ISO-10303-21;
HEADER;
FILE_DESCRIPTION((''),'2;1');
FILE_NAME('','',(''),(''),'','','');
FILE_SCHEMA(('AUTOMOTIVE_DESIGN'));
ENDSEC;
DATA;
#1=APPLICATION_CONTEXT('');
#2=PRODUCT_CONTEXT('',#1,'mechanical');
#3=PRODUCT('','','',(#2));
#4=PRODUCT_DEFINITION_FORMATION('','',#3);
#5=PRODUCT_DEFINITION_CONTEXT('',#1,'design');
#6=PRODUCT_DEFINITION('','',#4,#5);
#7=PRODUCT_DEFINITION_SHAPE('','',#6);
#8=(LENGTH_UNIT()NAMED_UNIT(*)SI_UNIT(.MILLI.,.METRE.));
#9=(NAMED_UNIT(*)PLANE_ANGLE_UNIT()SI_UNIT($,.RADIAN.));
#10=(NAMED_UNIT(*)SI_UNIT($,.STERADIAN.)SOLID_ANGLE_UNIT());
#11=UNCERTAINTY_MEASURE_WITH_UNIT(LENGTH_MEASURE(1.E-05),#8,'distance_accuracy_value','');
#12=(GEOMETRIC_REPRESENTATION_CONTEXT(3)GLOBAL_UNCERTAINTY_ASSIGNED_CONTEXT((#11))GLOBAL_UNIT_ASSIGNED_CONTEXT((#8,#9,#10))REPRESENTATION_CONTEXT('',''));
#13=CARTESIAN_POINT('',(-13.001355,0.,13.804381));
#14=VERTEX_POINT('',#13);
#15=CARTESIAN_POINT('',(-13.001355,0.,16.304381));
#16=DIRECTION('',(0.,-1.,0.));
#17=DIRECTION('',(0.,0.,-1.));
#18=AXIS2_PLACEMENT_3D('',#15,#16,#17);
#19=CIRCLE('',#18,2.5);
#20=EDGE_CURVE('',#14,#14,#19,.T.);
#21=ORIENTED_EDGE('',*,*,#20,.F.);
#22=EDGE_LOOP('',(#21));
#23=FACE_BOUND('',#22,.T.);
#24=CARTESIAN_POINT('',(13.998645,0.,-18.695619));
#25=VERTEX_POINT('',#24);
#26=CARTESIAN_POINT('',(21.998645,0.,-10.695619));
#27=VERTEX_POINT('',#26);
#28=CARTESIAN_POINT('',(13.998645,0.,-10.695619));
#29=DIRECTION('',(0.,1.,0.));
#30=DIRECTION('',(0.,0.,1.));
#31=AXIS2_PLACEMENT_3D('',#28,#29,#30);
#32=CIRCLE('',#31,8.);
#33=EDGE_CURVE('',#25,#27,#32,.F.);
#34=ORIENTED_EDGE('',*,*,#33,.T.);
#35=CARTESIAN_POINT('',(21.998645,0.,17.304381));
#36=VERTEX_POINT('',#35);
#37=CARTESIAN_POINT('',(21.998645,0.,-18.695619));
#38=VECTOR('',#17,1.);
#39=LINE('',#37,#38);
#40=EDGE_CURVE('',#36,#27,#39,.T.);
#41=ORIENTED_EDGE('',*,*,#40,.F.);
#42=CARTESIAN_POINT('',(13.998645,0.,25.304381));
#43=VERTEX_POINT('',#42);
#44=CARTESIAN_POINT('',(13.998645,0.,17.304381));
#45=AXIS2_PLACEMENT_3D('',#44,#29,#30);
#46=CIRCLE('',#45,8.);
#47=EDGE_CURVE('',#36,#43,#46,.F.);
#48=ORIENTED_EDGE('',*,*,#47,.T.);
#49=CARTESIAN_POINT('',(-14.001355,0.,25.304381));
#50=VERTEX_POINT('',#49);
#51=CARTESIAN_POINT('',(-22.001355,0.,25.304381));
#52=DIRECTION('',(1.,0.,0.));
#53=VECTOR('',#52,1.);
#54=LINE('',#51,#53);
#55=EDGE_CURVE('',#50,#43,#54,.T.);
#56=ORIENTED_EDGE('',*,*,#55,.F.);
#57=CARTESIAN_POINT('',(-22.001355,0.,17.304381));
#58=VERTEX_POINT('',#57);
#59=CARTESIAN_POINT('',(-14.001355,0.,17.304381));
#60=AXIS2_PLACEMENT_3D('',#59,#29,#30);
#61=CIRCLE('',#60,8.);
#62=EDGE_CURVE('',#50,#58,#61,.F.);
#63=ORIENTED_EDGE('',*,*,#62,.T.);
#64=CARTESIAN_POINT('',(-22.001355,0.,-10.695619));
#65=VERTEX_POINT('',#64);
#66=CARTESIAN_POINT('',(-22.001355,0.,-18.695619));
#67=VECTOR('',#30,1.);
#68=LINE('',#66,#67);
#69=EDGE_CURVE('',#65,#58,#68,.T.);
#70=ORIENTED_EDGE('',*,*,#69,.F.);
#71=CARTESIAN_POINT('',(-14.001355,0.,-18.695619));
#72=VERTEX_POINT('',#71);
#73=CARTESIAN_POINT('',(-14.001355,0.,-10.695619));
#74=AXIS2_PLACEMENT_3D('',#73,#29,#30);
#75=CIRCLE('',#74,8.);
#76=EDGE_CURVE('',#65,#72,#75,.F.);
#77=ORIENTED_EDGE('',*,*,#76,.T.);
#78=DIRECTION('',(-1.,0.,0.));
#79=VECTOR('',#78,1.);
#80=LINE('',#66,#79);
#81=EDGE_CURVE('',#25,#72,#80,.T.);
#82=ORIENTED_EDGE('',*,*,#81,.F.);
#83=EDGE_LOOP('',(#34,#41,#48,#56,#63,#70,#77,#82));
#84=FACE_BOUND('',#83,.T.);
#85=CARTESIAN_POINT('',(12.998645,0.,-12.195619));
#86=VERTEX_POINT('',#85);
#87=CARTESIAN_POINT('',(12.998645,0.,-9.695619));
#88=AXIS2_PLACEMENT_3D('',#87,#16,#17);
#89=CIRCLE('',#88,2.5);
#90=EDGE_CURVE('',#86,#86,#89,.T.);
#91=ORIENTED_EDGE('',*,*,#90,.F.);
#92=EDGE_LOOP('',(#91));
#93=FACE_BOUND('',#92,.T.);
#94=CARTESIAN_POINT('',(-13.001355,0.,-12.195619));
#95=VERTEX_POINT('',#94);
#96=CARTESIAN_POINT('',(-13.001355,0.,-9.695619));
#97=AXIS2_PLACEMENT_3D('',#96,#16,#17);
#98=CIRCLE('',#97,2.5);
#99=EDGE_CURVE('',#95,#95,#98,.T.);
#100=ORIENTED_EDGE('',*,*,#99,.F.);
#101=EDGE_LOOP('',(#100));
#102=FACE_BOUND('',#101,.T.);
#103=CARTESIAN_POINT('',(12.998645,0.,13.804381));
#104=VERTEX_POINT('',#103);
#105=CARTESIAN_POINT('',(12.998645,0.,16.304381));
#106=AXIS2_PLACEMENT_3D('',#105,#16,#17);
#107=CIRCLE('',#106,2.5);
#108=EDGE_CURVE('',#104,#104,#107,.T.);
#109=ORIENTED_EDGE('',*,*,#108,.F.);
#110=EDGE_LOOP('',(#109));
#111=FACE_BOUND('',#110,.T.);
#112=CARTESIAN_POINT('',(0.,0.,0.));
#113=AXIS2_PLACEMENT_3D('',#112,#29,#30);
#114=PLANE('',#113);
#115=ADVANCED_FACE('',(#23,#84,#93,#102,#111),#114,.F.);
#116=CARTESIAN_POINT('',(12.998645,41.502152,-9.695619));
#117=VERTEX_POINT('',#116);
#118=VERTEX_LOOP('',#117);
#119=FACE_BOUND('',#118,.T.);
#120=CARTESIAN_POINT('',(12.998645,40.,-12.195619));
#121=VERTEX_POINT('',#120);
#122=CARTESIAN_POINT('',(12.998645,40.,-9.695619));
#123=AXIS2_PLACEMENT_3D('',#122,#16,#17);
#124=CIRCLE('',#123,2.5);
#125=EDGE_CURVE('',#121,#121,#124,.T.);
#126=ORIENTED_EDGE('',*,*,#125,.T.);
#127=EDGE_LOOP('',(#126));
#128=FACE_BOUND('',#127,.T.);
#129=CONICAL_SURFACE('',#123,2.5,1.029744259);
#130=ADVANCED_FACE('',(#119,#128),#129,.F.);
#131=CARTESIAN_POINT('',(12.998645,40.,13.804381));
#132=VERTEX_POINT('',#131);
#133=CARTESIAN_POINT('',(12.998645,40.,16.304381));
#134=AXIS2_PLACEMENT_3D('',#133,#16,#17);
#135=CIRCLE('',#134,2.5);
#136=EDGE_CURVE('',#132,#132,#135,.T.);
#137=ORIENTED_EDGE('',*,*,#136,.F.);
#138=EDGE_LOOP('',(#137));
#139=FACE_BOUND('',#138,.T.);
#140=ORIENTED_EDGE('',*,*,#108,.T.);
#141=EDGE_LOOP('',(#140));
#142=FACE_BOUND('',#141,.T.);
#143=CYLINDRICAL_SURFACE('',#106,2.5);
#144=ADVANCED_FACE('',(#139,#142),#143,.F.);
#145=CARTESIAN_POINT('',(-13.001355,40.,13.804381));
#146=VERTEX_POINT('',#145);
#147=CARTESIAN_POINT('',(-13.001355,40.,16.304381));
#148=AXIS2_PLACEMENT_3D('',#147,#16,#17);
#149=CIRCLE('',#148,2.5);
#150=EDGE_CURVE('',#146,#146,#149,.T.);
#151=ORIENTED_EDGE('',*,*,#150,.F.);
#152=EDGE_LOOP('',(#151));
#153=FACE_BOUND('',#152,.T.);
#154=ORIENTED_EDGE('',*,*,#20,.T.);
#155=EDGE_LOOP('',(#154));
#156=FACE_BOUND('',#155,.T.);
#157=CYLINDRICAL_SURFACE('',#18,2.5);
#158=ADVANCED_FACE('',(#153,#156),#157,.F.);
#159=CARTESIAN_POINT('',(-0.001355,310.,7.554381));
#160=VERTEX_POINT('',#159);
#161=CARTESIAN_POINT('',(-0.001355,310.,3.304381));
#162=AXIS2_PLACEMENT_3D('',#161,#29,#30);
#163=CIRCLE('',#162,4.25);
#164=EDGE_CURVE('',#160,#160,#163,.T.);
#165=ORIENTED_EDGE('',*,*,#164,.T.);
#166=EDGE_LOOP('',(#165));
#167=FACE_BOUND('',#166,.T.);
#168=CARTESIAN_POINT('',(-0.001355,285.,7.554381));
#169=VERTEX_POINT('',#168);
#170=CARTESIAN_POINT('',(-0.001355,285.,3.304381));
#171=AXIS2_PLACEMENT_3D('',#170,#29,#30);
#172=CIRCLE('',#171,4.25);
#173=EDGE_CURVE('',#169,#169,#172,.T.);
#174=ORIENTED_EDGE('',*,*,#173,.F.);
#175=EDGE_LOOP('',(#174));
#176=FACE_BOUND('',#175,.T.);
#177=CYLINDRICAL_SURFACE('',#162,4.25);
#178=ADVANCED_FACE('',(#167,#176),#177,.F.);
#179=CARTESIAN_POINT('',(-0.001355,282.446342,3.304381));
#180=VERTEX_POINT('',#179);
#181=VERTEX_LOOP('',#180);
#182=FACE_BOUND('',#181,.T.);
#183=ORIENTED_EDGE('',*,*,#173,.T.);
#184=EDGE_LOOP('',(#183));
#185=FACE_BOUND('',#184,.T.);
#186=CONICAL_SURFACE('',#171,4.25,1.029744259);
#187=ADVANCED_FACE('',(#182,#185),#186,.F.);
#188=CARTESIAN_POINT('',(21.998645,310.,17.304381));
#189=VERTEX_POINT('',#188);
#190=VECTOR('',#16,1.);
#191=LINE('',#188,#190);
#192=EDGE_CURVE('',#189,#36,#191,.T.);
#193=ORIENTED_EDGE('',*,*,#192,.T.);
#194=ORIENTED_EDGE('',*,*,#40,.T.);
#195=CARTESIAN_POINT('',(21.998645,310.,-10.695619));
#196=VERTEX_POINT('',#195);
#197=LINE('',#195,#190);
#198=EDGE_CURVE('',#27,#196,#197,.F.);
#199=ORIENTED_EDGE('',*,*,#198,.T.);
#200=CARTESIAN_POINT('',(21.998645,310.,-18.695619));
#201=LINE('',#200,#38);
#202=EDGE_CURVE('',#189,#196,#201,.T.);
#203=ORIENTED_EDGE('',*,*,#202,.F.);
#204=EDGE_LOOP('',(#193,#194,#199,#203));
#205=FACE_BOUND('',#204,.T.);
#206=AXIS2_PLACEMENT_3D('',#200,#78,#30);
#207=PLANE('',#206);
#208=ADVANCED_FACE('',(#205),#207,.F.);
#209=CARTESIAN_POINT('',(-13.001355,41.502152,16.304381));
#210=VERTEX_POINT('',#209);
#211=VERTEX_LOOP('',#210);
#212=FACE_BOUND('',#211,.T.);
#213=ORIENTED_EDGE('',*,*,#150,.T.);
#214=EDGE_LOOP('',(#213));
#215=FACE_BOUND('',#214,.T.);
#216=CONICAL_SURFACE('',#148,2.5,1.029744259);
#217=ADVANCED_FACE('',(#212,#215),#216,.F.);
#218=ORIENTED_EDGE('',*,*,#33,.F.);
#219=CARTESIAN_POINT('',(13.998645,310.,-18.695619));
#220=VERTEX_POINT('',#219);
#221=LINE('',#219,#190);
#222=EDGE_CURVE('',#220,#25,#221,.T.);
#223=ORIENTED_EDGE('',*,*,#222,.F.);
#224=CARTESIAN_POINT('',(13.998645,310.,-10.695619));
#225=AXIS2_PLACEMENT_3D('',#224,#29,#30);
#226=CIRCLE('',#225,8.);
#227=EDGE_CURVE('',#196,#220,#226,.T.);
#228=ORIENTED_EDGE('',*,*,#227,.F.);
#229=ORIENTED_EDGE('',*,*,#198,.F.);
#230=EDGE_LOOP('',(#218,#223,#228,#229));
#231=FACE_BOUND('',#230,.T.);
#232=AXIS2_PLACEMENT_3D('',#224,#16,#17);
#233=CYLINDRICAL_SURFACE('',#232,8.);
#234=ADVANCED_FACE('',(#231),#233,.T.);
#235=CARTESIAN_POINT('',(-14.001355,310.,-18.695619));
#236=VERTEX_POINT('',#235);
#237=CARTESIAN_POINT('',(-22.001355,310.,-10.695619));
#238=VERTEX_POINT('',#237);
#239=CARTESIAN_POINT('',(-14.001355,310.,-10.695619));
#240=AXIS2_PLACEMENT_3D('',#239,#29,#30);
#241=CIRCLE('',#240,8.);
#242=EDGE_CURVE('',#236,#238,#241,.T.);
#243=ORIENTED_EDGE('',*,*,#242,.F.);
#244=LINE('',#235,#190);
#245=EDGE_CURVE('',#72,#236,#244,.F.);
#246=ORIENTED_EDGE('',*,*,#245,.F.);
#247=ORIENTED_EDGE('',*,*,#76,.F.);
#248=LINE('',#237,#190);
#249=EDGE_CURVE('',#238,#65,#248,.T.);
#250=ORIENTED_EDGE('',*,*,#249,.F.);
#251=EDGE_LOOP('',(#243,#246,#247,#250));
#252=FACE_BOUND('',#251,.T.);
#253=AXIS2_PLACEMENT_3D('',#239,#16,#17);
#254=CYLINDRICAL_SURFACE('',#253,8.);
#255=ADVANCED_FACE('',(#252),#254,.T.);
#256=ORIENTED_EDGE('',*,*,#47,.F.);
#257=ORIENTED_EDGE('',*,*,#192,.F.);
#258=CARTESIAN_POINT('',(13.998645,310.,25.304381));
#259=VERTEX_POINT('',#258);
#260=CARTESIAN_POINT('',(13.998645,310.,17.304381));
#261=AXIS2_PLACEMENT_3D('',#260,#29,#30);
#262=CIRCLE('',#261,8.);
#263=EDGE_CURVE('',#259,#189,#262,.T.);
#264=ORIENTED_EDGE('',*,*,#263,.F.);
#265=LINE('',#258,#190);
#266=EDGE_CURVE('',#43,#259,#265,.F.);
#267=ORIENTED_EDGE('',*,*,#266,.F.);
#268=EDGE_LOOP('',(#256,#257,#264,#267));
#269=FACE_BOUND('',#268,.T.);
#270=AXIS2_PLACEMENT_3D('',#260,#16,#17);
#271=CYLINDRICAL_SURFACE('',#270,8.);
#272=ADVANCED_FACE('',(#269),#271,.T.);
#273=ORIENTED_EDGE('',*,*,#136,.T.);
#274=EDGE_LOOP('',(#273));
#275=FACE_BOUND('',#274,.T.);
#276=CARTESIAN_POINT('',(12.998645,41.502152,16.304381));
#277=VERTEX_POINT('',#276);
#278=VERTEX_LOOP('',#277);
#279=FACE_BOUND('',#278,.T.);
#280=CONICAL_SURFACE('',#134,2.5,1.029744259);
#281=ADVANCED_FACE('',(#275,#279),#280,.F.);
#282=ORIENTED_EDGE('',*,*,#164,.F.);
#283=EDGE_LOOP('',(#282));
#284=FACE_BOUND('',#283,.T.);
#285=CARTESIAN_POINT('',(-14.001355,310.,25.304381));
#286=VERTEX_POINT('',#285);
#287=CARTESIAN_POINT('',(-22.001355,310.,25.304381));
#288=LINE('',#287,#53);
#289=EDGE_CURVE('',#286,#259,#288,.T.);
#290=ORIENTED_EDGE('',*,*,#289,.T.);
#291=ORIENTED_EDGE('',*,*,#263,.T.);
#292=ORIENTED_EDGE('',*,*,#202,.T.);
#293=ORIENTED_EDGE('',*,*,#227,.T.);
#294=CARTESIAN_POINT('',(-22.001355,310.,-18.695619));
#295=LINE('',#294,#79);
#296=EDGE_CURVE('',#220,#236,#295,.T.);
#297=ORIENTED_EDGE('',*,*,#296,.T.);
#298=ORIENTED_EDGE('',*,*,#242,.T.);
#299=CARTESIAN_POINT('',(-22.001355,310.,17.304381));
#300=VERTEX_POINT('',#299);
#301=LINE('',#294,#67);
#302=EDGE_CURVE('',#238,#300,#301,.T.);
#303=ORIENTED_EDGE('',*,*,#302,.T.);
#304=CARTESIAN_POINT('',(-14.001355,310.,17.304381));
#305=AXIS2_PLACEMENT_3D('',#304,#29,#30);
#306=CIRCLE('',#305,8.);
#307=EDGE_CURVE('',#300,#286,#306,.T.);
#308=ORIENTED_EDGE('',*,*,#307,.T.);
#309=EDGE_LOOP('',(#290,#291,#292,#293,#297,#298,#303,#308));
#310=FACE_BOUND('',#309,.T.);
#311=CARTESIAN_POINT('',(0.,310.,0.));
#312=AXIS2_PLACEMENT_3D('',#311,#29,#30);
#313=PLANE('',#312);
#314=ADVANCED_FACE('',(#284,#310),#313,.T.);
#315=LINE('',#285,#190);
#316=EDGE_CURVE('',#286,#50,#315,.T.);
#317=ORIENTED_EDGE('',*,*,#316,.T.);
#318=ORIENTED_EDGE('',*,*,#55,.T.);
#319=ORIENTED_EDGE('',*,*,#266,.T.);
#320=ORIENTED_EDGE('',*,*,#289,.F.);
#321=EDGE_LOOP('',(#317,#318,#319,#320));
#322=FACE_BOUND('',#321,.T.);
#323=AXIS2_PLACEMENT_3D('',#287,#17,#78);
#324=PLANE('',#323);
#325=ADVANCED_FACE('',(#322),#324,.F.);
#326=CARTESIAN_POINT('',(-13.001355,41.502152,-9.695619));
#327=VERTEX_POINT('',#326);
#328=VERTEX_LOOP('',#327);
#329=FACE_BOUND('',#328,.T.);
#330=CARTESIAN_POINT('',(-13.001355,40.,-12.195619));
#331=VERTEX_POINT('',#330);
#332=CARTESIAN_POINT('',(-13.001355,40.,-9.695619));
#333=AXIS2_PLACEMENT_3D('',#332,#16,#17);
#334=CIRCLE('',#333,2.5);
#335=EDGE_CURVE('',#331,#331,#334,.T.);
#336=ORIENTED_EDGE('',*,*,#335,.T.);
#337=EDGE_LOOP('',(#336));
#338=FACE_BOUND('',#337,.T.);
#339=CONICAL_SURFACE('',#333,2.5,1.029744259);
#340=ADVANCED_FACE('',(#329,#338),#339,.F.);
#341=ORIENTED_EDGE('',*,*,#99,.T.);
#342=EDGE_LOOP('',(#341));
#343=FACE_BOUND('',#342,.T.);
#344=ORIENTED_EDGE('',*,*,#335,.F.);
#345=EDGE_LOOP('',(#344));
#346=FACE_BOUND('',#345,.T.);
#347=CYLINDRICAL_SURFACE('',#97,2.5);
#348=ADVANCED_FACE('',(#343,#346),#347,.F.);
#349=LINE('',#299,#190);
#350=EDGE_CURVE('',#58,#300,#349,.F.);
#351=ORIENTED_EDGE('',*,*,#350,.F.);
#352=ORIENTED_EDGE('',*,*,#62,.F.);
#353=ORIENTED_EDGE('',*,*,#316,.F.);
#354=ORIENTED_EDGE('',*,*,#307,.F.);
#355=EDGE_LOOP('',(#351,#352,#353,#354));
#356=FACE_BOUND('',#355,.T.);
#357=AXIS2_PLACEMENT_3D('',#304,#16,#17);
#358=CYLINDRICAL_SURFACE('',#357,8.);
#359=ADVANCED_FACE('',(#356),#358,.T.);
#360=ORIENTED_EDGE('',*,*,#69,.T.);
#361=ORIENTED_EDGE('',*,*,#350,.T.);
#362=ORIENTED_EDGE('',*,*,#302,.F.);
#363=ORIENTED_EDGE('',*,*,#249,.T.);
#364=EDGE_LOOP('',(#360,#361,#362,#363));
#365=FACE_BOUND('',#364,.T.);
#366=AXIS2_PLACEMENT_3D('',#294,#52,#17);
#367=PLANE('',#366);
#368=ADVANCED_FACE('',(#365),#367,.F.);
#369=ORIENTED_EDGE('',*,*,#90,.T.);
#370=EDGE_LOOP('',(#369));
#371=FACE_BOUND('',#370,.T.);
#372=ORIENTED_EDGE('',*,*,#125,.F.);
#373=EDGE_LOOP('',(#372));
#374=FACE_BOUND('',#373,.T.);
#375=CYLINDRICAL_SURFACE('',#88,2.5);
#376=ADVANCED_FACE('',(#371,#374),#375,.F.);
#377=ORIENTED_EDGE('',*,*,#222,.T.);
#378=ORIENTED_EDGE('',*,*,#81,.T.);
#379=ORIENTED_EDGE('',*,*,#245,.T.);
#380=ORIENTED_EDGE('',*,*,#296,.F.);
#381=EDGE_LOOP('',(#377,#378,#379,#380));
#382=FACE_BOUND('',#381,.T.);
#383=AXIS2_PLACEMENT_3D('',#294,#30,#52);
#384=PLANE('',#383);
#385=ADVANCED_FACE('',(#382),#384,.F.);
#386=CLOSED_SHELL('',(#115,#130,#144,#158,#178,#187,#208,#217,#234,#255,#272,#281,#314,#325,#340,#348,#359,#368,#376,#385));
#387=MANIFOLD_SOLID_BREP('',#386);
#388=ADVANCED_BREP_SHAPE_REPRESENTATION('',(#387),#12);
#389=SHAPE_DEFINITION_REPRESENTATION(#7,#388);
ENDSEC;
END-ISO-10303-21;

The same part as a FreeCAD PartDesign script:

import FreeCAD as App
import Part
import Sketcher
Q = App.Units.Quantity


def edges_at(feature, points):
    """Names of the edges that pass closest to the given points."""
    edges = feature.Shape.Edges
    near = lambda p: min(range(len(edges)), key=lambda i: edges[i].distToShape(Part.Vertex(*p))[0])
    return sorted({f"Edge{near(p) + 1}" for p in points})

doc = App.newDocument("Part")
params = doc.addObject("Spreadsheet::Sheet", "Params")
for row, (alias, value) in enumerate([
    ("sketch1_width", "44 mm"),
    ("pad1_length", "310 mm"),
    ("sketch2_diameter", "8.5 mm"),
    ("hole_diameter", "8.5 mm"),
    ("hole_depth", "25 mm"),
    ("sketch3_diameter", "5 mm"),
    ("hole2_diameter", "5 mm"),
    ("hole2_depth", "40 mm"),
    ("fillet_radius", "8 mm"),
], start=1):
    params.set(f"A{row}", alias)
    params.set(f"B{row}", "=" + value)
    params.setAlias(f"B{row}", alias)

body = doc.addObject("PartDesign::Body", "Body")

# Sketch on XZ plane
sketch1 = body.newObject("Sketcher::SketchObject", "Sketch")
sketch1.AttachmentSupport = (doc.getObject("XZ_Plane"), [""])
sketch1.MapMode = "FlatFace"
sketch1.addGeometry([
    Part.LineSegment(App.Vector(-22, -19, 0), App.Vector(-22, 25, 0)),
    Part.LineSegment(App.Vector(-22, 25, 0), App.Vector(22, 25, 0)),
    Part.LineSegment(App.Vector(22, 25, 0), App.Vector(22, -19, 0)),
    Part.LineSegment(App.Vector(22, -19, 0), App.Vector(-22, -19, 0)),
], False)
sketch1.addConstraint([
    Sketcher.Constraint("Coincident", 0, 2, 1, 1),
    Sketcher.Constraint("Coincident", 1, 2, 2, 1),
    Sketcher.Constraint("Coincident", 2, 2, 3, 1),
    Sketcher.Constraint("Coincident", 3, 2, 0, 1),
    Sketcher.Constraint("Vertical", 0),
    Sketcher.Constraint("Horizontal", 1),
    Sketcher.Constraint("Vertical", 2),
    Sketcher.Constraint("Horizontal", 3),
    Sketcher.Constraint("Equal", 3, 0),
    Sketcher.Constraint("DistanceX", 1, 1, 1, 2, Q("44 mm")),
    Sketcher.Constraint("DistanceY", -1, 1, 0, 2, Q("25.304381 mm")),
    Sketcher.Constraint("DistanceX", 0, 2, -1, 1, Q("22.001355 mm")),
])
sketch1.setExpression("Constraints[9]", "Params.sketch1_width")
pad1 = body.newObject("PartDesign::Pad", "Pad")
pad1.Profile = sketch1
pad1.setExpression("Length", "Params.pad1_length")
pad1.Reversed = True

# Sketch on XZ plane
sketch2 = body.newObject("Sketcher::SketchObject", "Sketch001")
sketch2.AttachmentSupport = (doc.getObject("XZ_Plane"), [""])
sketch2.MapMode = "FlatFace"
sketch2.AttachmentOffset = App.Placement(App.Vector(0, 0, -310), App.Rotation())
sketch2.addGeometry(Part.Circle(App.Vector(0, 3.3, 0), App.Vector(0, 0, 1), 4.2), False)
sketch2.addConstraint([
    Sketcher.Constraint("Diameter", 0, Q("8.5 mm")),
    Sketcher.Constraint("DistanceY", -1, 1, 0, 3, Q("3.304381 mm")),
    Sketcher.Constraint("DistanceX", 0, 3, -1, 1, Q("0.001355 mm")),
])
sketch2.setExpression("Constraints[0]", "Params.sketch2_diameter")
doc.recompute()
hole = body.newObject("PartDesign::Hole", "Hole")
hole.Profile = sketch2
hole.ThreadType = "None"
hole.setExpression("Diameter", "Params.hole_diameter")
hole.DepthType = "Dimension"
hole.setExpression("Depth", "Params.hole_depth")
hole.DrillPoint = "Angled"
hole.DrillPointAngle = 118
hole.Reversed = True

# Sketch on XZ plane
sketch3 = body.newObject("Sketcher::SketchObject", "Sketch002")
sketch3.AttachmentSupport = (doc.getObject("XZ_Plane"), [""])
sketch3.MapMode = "FlatFace"
sketch3.addGeometry([
    Part.Circle(App.Vector(-13, 16.3, 0), App.Vector(0, 0, 1), 2.5),
    Part.Circle(App.Vector(13, 16.3, 0), App.Vector(0, 0, 1), 2.5),
    Part.Circle(App.Vector(13, -9.7, 0), App.Vector(0, 0, 1), 2.5),
    Part.Circle(App.Vector(-13, -9.7, 0), App.Vector(0, 0, 1), 2.5),
], False)
sketch3.addConstraint([
    Sketcher.Constraint("Equal", 0, 1),
    Sketcher.Constraint("Equal", 1, 2),
    Sketcher.Constraint("Equal", 2, 3),
    Sketcher.Constraint("Horizontal", 0, 3, 1, 3),
    Sketcher.Constraint("Horizontal", 2, 3, 3, 3),
    Sketcher.Constraint("Vertical", 1, 3, 2, 3),
    Sketcher.Constraint("Vertical", 0, 3, 3, 3),
    Sketcher.Constraint("Diameter", 0, Q("5 mm")),
    Sketcher.Constraint("DistanceX", 0, 3, 1, 3, Q("26 mm")),
    Sketcher.Constraint("DistanceY", 2, 3, 1, 3, Q("26 mm")),
    Sketcher.Constraint("DistanceY", -1, 1, 0, 3, Q("16.304381 mm")),
    Sketcher.Constraint("DistanceX", 0, 3, -1, 1, Q("13.001355 mm")),
])
sketch3.setExpression("Constraints[7]", "Params.sketch3_diameter")
doc.recompute()
hole2 = body.newObject("PartDesign::Hole", "Hole001")
hole2.Profile = sketch3
hole2.ThreadType = "None"
hole2.setExpression("Diameter", "Params.hole2_diameter")
hole2.DepthType = "Dimension"
hole2.setExpression("Depth", "Params.hole2_depth")
hole2.DrillPoint = "Angled"
hole2.DrillPointAngle = 118
doc.recompute()

fillet = body.newObject("PartDesign::Fillet", "Fillet")
fillet.Base = (hole2, edges_at(hole2, [
    (-22.001, 155, -18.696),
    (21.999, 155, -18.696),
    (21.999, 155, 25.304),
    (-22.001, 155, 25.304),
]))
fillet.setExpression("Radius", "Params.fillet_radius")

doc.recompute()
